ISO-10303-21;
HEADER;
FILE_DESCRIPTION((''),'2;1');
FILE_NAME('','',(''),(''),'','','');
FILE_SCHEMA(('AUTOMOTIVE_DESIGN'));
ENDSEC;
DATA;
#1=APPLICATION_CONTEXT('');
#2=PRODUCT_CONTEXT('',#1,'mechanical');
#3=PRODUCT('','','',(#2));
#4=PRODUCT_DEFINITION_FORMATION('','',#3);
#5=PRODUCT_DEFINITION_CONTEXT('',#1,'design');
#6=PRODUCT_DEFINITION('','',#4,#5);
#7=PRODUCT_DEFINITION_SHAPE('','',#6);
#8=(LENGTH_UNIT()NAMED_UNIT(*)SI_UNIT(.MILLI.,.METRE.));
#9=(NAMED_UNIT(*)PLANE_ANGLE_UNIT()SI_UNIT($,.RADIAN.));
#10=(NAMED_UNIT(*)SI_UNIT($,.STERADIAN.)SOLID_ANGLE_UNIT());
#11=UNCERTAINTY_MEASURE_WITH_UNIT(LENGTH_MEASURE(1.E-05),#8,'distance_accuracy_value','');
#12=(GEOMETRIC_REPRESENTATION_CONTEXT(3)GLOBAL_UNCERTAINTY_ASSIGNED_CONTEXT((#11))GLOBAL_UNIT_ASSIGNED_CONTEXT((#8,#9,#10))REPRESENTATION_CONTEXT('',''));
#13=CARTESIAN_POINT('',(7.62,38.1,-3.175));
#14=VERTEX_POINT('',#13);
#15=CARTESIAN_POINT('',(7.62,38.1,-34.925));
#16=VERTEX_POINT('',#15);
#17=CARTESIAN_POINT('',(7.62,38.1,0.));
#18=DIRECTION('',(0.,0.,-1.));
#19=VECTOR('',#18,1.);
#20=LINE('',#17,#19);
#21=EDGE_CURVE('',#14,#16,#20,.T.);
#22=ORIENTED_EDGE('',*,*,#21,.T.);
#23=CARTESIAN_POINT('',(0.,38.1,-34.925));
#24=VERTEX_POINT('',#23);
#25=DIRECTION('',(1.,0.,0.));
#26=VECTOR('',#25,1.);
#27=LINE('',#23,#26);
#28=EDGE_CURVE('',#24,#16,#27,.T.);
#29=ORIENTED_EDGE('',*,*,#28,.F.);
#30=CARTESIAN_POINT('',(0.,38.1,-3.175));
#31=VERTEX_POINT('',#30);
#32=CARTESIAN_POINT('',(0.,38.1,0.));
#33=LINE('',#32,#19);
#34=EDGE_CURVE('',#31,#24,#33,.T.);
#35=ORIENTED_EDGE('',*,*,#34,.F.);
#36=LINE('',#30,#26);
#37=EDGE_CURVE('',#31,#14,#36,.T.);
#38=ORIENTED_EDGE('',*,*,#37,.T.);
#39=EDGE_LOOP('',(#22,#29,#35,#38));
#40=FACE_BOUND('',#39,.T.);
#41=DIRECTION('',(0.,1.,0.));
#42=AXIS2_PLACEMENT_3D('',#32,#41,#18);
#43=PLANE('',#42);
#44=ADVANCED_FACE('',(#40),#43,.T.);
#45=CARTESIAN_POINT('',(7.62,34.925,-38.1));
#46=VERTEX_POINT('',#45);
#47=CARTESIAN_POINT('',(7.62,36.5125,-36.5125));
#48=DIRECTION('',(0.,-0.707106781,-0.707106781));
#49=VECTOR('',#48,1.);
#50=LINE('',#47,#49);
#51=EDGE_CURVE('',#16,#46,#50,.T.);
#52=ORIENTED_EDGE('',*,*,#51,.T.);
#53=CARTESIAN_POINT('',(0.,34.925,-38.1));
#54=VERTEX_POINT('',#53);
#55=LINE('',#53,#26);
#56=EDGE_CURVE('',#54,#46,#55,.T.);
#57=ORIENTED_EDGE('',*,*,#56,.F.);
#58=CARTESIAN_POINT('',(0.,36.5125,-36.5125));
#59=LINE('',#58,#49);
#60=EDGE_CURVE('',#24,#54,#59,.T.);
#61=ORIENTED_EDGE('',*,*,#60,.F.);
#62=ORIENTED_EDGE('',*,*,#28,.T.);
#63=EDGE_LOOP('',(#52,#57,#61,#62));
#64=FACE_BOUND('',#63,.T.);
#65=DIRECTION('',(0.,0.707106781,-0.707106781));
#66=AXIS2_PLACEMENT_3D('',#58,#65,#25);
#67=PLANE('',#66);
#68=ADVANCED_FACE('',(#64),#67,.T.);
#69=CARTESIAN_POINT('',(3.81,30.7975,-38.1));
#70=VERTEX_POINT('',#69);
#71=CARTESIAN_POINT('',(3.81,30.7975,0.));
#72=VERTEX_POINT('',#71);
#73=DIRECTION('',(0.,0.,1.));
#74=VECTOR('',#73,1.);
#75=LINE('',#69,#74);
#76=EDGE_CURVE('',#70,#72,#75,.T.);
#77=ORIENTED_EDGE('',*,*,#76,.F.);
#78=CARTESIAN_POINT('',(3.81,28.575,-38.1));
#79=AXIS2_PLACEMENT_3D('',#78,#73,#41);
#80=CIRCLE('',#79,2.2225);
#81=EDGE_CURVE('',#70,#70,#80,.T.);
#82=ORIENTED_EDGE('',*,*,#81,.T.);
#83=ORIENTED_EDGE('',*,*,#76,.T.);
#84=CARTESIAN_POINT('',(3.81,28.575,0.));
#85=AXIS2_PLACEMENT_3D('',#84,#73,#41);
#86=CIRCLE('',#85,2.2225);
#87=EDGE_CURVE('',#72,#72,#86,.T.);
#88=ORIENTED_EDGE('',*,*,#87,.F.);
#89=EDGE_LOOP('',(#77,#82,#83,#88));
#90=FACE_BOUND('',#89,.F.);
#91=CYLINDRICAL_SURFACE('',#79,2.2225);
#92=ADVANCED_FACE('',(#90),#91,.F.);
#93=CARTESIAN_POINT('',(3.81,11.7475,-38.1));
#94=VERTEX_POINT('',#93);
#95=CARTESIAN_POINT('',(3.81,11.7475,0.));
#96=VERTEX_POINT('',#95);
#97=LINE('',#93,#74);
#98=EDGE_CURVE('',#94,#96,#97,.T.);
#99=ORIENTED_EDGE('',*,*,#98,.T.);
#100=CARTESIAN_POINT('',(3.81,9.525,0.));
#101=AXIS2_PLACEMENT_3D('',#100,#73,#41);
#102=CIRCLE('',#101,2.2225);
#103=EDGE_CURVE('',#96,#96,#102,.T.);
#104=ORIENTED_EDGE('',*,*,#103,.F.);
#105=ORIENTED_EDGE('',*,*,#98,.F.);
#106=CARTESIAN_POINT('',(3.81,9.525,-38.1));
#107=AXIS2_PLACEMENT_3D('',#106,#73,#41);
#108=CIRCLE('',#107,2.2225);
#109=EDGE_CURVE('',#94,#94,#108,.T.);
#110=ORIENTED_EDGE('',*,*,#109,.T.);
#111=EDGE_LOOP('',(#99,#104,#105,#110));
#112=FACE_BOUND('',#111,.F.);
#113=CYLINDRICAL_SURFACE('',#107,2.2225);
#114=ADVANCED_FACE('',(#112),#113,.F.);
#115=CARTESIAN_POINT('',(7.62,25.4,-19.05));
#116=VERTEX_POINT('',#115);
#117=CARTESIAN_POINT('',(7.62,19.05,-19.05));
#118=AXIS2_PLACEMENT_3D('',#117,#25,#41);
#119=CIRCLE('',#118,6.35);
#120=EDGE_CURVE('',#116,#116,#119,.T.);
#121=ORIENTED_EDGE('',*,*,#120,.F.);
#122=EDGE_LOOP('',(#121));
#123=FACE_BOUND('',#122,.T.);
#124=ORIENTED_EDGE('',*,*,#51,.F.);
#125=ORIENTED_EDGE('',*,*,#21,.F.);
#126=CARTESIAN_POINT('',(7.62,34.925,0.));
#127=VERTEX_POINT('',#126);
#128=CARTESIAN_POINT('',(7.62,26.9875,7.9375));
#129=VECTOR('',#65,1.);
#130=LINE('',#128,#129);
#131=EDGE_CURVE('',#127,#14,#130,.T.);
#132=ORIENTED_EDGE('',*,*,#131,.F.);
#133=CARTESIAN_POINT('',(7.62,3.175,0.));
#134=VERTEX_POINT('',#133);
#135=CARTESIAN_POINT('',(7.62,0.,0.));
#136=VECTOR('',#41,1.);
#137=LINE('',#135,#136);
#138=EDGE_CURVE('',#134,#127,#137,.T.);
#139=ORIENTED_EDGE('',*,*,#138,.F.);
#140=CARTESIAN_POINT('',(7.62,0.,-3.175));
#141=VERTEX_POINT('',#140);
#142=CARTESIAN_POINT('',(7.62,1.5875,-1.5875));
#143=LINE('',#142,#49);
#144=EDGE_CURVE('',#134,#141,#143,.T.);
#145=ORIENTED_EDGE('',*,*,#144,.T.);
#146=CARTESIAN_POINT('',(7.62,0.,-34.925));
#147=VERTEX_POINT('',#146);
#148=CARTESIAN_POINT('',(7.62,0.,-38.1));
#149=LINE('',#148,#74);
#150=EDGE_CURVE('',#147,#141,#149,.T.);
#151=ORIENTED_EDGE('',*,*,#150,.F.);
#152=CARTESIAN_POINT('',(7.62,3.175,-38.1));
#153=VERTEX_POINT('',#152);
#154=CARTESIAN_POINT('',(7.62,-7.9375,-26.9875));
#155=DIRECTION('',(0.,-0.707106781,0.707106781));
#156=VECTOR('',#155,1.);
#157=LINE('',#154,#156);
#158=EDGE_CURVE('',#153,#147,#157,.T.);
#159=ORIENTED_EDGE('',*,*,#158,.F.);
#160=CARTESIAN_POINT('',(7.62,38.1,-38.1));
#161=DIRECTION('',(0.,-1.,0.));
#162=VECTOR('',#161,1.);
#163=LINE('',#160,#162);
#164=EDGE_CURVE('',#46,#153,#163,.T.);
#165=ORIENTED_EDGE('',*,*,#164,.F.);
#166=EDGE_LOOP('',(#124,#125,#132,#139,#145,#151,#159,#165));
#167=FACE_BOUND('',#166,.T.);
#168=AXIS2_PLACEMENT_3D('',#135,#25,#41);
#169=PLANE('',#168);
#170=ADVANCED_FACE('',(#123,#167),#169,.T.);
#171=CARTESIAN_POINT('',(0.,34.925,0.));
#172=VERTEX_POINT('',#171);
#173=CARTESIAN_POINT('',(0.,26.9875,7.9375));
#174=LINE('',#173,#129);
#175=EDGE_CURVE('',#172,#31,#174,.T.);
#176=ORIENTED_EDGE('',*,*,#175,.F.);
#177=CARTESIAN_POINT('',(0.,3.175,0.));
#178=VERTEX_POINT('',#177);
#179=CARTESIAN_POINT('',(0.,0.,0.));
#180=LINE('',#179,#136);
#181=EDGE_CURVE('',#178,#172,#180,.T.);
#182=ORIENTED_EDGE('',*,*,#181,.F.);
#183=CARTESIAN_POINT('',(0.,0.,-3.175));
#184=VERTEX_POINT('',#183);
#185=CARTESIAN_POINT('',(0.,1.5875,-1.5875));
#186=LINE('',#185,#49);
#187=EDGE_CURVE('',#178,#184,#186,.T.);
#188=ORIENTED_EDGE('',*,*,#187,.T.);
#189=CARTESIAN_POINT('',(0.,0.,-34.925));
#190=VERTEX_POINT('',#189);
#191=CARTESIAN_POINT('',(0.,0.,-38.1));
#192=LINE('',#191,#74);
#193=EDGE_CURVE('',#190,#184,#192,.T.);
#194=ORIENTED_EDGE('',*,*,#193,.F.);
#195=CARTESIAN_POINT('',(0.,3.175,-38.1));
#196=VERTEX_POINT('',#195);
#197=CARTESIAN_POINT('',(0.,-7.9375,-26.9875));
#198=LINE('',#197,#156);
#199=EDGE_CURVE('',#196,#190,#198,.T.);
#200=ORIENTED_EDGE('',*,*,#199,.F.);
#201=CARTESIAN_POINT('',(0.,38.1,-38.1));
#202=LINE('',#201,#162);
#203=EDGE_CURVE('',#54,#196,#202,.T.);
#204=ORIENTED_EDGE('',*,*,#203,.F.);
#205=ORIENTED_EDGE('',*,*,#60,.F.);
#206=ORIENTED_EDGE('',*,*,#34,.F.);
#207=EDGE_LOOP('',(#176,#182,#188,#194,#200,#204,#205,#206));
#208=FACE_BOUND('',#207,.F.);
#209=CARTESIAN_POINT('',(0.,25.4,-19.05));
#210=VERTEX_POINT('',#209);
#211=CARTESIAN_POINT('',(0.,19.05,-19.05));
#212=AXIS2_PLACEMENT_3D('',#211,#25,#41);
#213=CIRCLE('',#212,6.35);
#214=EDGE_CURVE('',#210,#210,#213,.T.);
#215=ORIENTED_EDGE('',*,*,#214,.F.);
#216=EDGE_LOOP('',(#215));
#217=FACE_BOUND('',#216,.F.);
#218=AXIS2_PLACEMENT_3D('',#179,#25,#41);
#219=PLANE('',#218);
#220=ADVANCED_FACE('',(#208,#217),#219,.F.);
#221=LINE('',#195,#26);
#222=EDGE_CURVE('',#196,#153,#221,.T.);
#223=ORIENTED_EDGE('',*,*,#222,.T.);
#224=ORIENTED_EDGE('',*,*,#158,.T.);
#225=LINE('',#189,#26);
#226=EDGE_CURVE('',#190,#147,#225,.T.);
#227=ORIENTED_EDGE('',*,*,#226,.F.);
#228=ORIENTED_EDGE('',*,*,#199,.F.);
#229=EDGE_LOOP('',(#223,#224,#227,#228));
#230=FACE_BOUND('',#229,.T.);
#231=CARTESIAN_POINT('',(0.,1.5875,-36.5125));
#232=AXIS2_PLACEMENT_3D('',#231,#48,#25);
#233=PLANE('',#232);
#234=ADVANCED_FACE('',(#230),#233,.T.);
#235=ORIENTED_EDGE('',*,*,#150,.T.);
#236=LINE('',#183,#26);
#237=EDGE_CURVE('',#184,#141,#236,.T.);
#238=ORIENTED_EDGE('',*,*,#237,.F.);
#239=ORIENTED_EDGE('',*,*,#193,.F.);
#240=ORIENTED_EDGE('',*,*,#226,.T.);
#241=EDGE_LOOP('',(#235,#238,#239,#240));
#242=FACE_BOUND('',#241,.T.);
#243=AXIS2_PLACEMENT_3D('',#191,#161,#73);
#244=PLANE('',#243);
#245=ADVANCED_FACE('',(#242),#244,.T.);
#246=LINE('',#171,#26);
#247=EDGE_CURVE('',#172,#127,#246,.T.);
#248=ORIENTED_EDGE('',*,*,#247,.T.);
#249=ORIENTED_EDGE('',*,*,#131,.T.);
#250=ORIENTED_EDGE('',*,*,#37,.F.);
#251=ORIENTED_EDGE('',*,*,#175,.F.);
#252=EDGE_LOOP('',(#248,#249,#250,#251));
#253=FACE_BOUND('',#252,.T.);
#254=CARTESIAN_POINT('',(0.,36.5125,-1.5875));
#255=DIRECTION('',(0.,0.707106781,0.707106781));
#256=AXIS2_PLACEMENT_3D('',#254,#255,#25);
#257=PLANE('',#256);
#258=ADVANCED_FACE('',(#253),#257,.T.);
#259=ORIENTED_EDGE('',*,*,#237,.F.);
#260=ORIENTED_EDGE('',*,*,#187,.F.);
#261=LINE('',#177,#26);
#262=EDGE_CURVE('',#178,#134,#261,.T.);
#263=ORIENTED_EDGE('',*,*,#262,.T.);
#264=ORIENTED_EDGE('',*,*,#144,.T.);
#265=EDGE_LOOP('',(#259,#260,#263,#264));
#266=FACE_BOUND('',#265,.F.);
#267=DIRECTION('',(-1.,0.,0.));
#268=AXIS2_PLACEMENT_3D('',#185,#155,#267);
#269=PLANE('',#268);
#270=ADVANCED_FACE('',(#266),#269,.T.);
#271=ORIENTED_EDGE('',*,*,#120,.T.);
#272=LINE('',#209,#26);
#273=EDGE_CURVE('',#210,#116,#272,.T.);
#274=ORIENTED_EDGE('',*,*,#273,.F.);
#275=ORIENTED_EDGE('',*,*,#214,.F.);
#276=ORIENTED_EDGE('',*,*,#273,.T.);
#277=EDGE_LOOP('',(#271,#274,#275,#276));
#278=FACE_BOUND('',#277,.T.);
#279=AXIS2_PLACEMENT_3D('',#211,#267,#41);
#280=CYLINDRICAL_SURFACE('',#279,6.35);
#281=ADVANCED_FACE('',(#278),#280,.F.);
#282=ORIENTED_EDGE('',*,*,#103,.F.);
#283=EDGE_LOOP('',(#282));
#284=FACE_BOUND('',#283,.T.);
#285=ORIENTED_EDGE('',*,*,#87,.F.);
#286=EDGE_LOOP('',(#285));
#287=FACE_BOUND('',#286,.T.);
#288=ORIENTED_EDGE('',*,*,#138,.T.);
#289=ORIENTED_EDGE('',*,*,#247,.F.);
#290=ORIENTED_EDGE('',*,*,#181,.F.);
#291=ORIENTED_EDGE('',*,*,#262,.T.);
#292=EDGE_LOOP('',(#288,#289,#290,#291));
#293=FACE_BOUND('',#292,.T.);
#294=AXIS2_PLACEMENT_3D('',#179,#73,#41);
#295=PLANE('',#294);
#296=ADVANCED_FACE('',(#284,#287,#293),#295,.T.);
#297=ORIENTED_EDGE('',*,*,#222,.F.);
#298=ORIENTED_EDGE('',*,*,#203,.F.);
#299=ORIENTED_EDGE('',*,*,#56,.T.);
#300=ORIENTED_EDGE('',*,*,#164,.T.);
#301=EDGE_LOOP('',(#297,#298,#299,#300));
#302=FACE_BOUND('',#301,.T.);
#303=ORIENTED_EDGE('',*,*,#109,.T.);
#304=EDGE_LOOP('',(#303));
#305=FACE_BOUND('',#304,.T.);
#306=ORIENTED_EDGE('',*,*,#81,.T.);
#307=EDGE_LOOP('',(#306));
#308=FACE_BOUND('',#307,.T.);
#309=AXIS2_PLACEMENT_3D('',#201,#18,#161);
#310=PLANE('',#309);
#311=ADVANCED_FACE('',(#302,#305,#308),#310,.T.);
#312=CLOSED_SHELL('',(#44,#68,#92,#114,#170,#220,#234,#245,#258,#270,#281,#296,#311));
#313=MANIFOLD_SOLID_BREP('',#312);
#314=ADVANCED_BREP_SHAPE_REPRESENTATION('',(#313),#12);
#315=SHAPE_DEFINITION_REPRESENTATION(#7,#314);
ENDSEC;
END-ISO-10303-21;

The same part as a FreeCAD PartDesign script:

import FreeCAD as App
import Part
import Sketcher
from FreeCAD import Vector
Q = App.Units.Quantity


def edges_at(feature, points):
    """Names of the edges that pass closest to the given points."""
    edges = feature.Shape.Edges
    near = lambda p: min(range(len(edges)), key=lambda i: edges[i].distToShape(Part.Vertex(*p))[0])
    return sorted({f"Edge{near(p) + 1}" for p in points})


def add_polygon(sketch, points):
    """Adds a closed chain of lines whose ends are joined by coincident constraints."""
    first, n = sketch.GeometryCount, len(points)
    for a, b in zip(points, points[1:] + points[:1]):
        sketch.addGeometry(Part.LineSegment(App.Vector(*a, 0), App.Vector(*b, 0)), False)
    for i in range(n):
        sketch.addConstraint(Sketcher.Constraint("Coincident", first + i, 2, first + (i + 1) % n, 1))

doc = App.newDocument("Part")
body = doc.addObject("PartDesign::Body", "Body")

# Sketch on YZ plane
sketch1 = body.newObject("Sketcher::SketchObject", "Sketch")
sketch1.AttachmentSupport = (doc.getObject("YZ_Plane"), [""])
sketch1.MapMode = "FlatFace"
add_polygon(sketch1, [(38, 0), (0, 0), (0, -38), (38, -38)])  # lines 0-3
sketch1.addGeometry(Part.Circle(Vector(19, -19, 0), Vector(0, 0, 1), 6), False)  # 4
sketch1.addConstraint([
    Sketcher.Constraint("Horizontal", 0),
    Sketcher.Constraint("Vertical", 1),
    Sketcher.Constraint("Horizontal", 2),
    Sketcher.Constraint("Vertical", 3),
    Sketcher.Constraint("Coincident", 0, 2, -1, 1),
    Sketcher.Constraint("Equal", 2, 1),
    Sketcher.Constraint("Diameter", 4, Q("0.5 in")),
    Sketcher.Constraint("DistanceX", 0, 2, 0, 1, Q("1.5 in")),
    Sketcher.Constraint("DistanceX", -1, 1, 4, 3, Q("0.75 in")),
    Sketcher.Constraint("DistanceY", 4, 3, -1, 1, Q("0.75 in")),
])
pad1 = body.newObject("PartDesign::Pad", "Pad")
pad1.Profile = sketch1
pad1.Length = Q("0.3 in")
doc.recompute()

chamfer = body.newObject("PartDesign::Chamfer", "Chamfer")
chamfer.Base = (pad1, edges_at(pad1, [
    (3.81, 38.1, 0),
    (3.81, 38.1, -38.1),
    (3.81, 0, 0),
    (3.81, 0, -38.1),
]))
chamfer.Size = Q("0.125 in")

# Sketch on XY plane
sketch2 = body.newObject("Sketcher::SketchObject", "Sketch001")
sketch2.AttachmentSupport = (doc.getObject("XY_Plane"), [""])
sketch2.MapMode = "FlatFace"
sketch2.AttachmentOffset = App.Placement(Vector(0, 0, -1.5 * 25.4), App.Rotation())
sketch2.addGeometry([
    Part.Circle(Vector(3.8, 28.6, 0), Vector(0, 0, 1), 2.2),
    Part.Circle(Vector(3.8, 9.5, 0), Vector(0, 0, 1), 2.2),
], False)
sketch2.addConstraint([
    Sketcher.Constraint("Equal", 0, 1),
    Sketcher.Constraint("Vertical", 0, 3, 1, 3),
    Sketcher.Constraint("Diameter", 0, Q("0.175 in")),
    Sketcher.Constraint("DistanceX", -1, 1, 0, 3, Q("0.15 in")),
    Sketcher.Constraint("DistanceY", 1, 3, 0, 3, Q("0.75 in")),
    Sketcher.Constraint("DistanceY", -1, 1, 0, 3, Q("1.125 in")),
])
doc.recompute()
hole = body.newObject("PartDesign::Hole", "Hole")
hole.Profile = sketch2
hole.ThreadType = "None"
hole.Diameter = Q("0.175 in")
hole.DepthType = "ThroughAll"
hole.Reversed = True

doc.recompute()
